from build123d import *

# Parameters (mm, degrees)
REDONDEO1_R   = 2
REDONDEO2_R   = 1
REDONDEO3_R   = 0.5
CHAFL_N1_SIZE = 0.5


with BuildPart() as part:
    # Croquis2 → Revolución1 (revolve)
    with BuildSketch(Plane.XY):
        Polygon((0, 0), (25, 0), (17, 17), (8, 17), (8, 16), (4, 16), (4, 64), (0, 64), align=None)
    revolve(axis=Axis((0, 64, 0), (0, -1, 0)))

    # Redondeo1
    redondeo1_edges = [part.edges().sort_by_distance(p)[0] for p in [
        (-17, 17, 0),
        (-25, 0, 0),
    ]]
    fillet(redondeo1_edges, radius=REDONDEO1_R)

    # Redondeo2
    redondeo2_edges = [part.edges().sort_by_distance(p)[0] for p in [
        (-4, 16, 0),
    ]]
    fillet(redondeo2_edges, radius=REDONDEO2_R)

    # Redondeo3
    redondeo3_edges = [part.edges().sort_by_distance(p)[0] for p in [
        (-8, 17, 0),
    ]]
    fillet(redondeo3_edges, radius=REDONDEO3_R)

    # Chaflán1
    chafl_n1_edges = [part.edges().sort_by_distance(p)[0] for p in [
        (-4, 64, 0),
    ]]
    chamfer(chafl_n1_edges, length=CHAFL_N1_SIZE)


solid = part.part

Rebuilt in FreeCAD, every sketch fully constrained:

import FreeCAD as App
import Part
import Sketcher
Q = App.Units.Quantity


def edges_at(feature, points):
    """Names of the edges that pass closest to the given points."""
    edges = feature.Shape.Edges
    near = lambda p: min(range(len(edges)), key=lambda i: edges[i].distToShape(Part.Vertex(*p))[0])
    return sorted({f"Edge{near(p) + 1}" for p in points})


def add_polygon(sketch, points):
    """Adds a closed chain of lines whose ends are joined by coincident constraints."""
    first, n = sketch.GeometryCount, len(points)
    for a, b in zip(points, points[1:] + points[:1]):
        sketch.addGeometry(Part.LineSegment(App.Vector(*a, 0), App.Vector(*b, 0)), False)
    for i in range(n):
        sketch.addConstraint(Sketcher.Constraint("Coincident", first + i, 2, first + (i + 1) % n, 1))

doc = App.newDocument("Part")
body = doc.addObject("PartDesign::Body", "Body")

sketch1 = body.newObject("Sketcher::SketchObject", "Sketch")
sketch1.AttachmentSupport = (doc.getObject("XY_Plane"), [""])
sketch1.MapMode = "FlatFace"
add_polygon(sketch1, [(0, 0), (25, 0), (17, 17), (8, 17), (8, 16), (4, 16), (4, 64), (0, 64)])
sketch1.addConstraint(Sketcher.Constraint("Horizontal", 0))
sketch1.addConstraint(Sketcher.Constraint("Horizontal", 2))
sketch1.addConstraint(Sketcher.Constraint("Vertical", 3))
sketch1.addConstraint(Sketcher.Constraint("Horizontal", 4))
sketch1.addConstraint(Sketcher.Constraint("Vertical", 5))
sketch1.addConstraint(Sketcher.Constraint("Horizontal", 6))
sketch1.addConstraint(Sketcher.Constraint("Vertical", 7))
sketch1.addConstraint(Sketcher.Constraint("Coincident", 7, 2, -1, 1))
sketch1.addConstraint(Sketcher.Constraint("Equal", 4, 6))
sketch1.addConstraint(Sketcher.Constraint("DistanceX", 0, 1, 0, 2, Q("25 mm")))
sketch1.addConstraint(Sketcher.Constraint("DistanceX", 2, 2, 2, 1, Q("9 mm")))
sketch1.addConstraint(Sketcher.Constraint("DistanceX", 4, 2, 4, 1, Q("4 mm")))
sketch1.addConstraint(Sketcher.Constraint("DistanceY", 3, 2, 3, 1, Q("1 mm")))
sketch1.addConstraint(Sketcher.Constraint("DistanceY", 5, 1, 5, 2, Q("48 mm")))
sketch1.addConstraint(Sketcher.Constraint("DistanceY", 7, 2, 7, 1, Q("64 mm")))
revolution = body.newObject("PartDesign::Revolution", "Revolution")
revolution.Profile = sketch1
revolution.ReferenceAxis = (sketch1, ["V_Axis"])
revolution.Angle = 360
doc.recompute()

fillet = body.newObject("PartDesign::Fillet", "Fillet")
fillet.Base = (revolution, edges_at(revolution, [(-17, 17, 0), (-25, 0, 0)]))
fillet.Radius = 2
doc.recompute()

fillet2 = body.newObject("PartDesign::Fillet", "Fillet001")
fillet2.Base = (fillet, edges_at(fillet, [(-4, 16, 0)]))
fillet2.Radius = 1
doc.recompute()

fillet3 = body.newObject("PartDesign::Fillet", "Fillet002")
fillet3.Base = (fillet2, edges_at(fillet2, [(-8, 17, 0)]))
fillet3.Radius = 0.5
doc.recompute()

chamfer = body.newObject("PartDesign::Chamfer", "Chamfer")
chamfer.Base = (fillet3, edges_at(fillet3, [(-4, 64, 0)]))
chamfer.Size = 0.5

doc.recompute()
